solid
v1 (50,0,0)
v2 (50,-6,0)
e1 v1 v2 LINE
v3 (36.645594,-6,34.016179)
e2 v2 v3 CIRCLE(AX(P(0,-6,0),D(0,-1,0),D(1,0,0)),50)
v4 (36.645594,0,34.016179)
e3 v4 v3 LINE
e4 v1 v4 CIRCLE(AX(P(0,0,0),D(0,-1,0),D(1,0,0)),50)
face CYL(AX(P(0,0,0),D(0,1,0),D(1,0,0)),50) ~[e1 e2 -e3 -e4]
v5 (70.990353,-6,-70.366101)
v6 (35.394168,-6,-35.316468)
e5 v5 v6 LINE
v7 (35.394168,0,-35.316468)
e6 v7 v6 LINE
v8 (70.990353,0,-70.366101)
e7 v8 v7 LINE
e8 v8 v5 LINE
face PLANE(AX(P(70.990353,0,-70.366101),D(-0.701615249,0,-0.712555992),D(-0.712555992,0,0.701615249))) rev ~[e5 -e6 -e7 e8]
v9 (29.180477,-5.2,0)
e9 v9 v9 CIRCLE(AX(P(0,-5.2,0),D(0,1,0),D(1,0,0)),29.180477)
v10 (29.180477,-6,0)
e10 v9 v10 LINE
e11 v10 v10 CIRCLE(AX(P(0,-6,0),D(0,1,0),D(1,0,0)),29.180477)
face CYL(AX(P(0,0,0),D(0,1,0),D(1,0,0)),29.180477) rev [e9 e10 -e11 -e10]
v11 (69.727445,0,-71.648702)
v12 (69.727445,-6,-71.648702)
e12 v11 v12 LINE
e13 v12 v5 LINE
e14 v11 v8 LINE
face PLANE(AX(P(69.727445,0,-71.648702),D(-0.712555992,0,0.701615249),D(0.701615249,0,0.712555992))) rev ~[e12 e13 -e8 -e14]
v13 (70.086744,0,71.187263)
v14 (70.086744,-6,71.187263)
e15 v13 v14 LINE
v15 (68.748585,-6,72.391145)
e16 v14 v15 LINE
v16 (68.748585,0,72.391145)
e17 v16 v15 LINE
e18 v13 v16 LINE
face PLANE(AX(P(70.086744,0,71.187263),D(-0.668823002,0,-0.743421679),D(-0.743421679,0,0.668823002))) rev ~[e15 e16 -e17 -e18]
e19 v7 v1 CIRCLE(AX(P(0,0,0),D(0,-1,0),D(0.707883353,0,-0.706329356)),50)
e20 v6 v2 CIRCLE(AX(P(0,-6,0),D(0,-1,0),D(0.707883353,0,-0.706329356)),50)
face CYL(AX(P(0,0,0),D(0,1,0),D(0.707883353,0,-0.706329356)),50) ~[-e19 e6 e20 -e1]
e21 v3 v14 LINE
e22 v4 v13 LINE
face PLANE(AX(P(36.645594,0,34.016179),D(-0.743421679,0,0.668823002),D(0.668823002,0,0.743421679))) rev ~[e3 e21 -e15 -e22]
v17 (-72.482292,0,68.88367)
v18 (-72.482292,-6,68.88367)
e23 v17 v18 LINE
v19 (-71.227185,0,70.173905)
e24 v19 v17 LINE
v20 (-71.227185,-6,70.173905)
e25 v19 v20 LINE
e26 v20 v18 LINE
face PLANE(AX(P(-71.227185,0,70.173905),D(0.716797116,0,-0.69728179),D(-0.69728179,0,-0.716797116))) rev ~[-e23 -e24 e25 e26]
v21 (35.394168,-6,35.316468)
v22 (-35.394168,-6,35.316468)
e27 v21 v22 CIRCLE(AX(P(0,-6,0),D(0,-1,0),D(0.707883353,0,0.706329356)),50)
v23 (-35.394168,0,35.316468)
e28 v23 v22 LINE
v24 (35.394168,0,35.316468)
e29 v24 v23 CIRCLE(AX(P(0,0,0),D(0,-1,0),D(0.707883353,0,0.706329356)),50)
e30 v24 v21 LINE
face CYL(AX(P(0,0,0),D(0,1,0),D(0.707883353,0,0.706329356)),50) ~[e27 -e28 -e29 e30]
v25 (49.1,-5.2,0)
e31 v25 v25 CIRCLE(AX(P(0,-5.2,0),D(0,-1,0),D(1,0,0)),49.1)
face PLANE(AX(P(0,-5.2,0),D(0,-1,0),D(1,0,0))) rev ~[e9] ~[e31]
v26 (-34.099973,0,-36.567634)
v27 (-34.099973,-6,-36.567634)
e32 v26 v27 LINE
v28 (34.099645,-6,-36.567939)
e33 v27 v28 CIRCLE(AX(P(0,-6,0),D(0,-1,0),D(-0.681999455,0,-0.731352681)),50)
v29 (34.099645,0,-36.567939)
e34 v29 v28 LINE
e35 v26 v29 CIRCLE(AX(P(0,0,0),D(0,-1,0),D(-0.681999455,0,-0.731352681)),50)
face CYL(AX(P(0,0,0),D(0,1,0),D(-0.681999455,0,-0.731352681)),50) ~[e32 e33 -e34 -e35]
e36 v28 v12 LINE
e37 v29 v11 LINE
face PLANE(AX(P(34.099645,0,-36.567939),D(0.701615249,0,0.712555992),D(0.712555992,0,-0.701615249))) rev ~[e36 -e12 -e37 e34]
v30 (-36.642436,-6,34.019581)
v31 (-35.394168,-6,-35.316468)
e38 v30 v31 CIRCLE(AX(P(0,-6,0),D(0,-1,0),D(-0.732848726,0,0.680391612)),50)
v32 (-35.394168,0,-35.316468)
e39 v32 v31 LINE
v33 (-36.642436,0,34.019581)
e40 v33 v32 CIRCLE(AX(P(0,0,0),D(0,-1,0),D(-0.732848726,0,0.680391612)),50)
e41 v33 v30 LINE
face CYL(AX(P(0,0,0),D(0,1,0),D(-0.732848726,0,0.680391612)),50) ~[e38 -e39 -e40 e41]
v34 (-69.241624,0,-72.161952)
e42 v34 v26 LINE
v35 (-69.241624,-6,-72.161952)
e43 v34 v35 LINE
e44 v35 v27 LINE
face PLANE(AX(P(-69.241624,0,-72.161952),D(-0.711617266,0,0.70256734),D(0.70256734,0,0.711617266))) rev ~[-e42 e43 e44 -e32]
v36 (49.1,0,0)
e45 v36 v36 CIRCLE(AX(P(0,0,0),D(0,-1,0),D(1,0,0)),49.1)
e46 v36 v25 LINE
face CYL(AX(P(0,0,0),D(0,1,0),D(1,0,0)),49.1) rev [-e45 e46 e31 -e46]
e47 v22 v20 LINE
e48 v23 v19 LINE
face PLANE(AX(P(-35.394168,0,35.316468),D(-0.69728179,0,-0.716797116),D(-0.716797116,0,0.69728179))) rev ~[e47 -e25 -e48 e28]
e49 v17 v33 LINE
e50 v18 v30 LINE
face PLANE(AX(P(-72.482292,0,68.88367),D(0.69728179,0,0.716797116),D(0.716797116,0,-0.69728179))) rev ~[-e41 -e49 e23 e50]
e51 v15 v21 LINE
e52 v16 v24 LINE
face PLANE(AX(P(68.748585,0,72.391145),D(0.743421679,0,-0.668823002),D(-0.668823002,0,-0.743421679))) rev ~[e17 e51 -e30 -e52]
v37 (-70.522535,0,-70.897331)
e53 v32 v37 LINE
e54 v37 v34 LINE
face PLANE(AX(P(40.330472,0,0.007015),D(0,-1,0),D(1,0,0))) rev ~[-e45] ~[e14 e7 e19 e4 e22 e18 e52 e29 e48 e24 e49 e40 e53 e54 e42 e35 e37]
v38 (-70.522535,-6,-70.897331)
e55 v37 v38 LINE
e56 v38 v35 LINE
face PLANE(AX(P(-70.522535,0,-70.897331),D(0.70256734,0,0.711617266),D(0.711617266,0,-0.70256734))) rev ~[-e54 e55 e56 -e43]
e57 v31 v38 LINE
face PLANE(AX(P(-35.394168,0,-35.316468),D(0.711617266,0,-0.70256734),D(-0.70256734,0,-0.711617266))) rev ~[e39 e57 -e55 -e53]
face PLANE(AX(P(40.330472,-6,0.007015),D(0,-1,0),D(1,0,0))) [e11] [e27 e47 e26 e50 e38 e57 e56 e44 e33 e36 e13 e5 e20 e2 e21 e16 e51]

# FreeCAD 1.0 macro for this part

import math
import FreeCAD as App
import Part
import Sketcher
from FreeCAD import Vector
Q = App.Units.Quantity

doc = App.newDocument("Part")
body = doc.addObject("PartDesign::Body", "Body")

# Sketch on XZ plane
sketch1 = doc.addObject("Sketcher::SketchObject", "Sketch")
body.addObject(sketch1)
sketch1.AttachmentSupport = (doc.XZ_Plane, [""])
sketch1.MapMode = "FlatFace"
sketch1.addGeometry([
    Part.ArcOfCircle(Part.Circle(Vector(0, 0, 0), Vector(0, 0, 1), 50), math.radians(-44.937041), math.radians(0)),  # 0
    Part.ArcOfCircle(Part.Circle(Vector(0, 0, 0), Vector(0, 0, 1), 50), math.radians(0), math.radians(42.868935)),  # 1
    Part.LineSegment(Vector(36.645594, 34.016179, 0), Vector(70.086744, 71.187263, 0)),  # 2
    Part.LineSegment(Vector(70.086744, 71.187263, 0), Vector(68.748585, 72.391145, 0)),  # 3
    Part.LineSegment(Vector(68.748585, 72.391145, 0), Vector(35.394168, 35.316468, 0)),  # 4
    Part.ArcOfCircle(Part.Circle(Vector(0, 0, 0), Vector(0, 0, 1), 50), math.radians(44.937041), math.radians(135.062959)),  # 5
    Part.LineSegment(Vector(-35.394168, 35.316468, 0), Vector(-71.227185, 70.173905, 0)),  # 6
    Part.LineSegment(Vector(-71.227185, 70.173905, 0), Vector(-72.482292, 68.88367, 0)),  # 7
    Part.LineSegment(Vector(-72.482292, 68.88367, 0), Vector(-36.642436, 34.019581, 0)),  # 8
    Part.ArcOfCircle(Part.Circle(Vector(0, 0, 0), Vector(0, 0, 1), 50), math.radians(137.125747), math.radians(224.937041)),  # 9
    Part.LineSegment(Vector(-35.394168, -35.316468, 0), Vector(-70.522535, -70.897331, 0)),  # 10
    Part.LineSegment(Vector(-70.522535, -70.897331, 0), Vector(-69.241624, -72.161952, 0)),  # 11
    Part.LineSegment(Vector(-69.241624, -72.161952, 0), Vector(-34.099973, -36.567634, 0)),  # 12
    Part.ArcOfCircle(Part.Circle(Vector(0, 0, 0), Vector(0, 0, 1), 50), math.radians(-133.000086), math.radians(-47.000427)),  # 13
    Part.LineSegment(Vector(34.099645, -36.567939, 0), Vector(69.727445, -71.648702, 0)),  # 14
    Part.LineSegment(Vector(69.727445, -71.648702, 0), Vector(70.990353, -70.366101, 0)),  # 15
    Part.LineSegment(Vector(70.990353, -70.366101, 0), Vector(35.394168, -35.316468, 0)),  # 16
], False)
sketch1.addConstraint([
    Sketcher.Constraint("Tangent", 0, 2, 1, 1),
    Sketcher.Constraint("Coincident", 1, 2, 2, 1),
    Sketcher.Constraint("Coincident", 2, 2, 3, 1),
    Sketcher.Constraint("Coincident", 3, 2, 4, 1),
    Sketcher.Constraint("Coincident", 4, 2, 5, 1),
    Sketcher.Constraint("Coincident", 5, 2, 6, 1),
    Sketcher.Constraint("Coincident", 6, 2, 7, 1),
    Sketcher.Constraint("Coincident", 7, 2, 8, 1),
    Sketcher.Constraint("Coincident", 8, 2, 9, 1),
    Sketcher.Constraint("Coincident", 9, 2, 10, 1),
    Sketcher.Constraint("Coincident", 10, 2, 11, 1),
    Sketcher.Constraint("Coincident", 11, 2, 12, 1),
    Sketcher.Constraint("Coincident", 12, 2, 13, 1),
    Sketcher.Constraint("Coincident", 13, 2, 14, 1),
    Sketcher.Constraint("Coincident", 14, 2, 15, 1),
    Sketcher.Constraint("Coincident", 15, 2, 16, 1),
    Sketcher.Constraint("Coincident", 16, 2, 0, 1),
    Sketcher.Constraint("Coincident", 0, 3, -1, 1),
    Sketcher.Constraint("Coincident", 5, 3, -1, 1),
    Sketcher.Constraint("Coincident", 9, 3, -1, 1),
    Sketcher.Constraint("Coincident", 13, 3, -1, 1),
    Sketcher.Constraint("Equal", 0, 1),
    Sketcher.Constraint("Equal", 1, 5),
    Sketcher.Constraint("Equal", 5, 9),
    Sketcher.Constraint("Equal", 9, 13),
    Sketcher.Constraint("PointOnObject", 0, 2, -1),
    Sketcher.Constraint("Perpendicular", 2, 3),
    Sketcher.Constraint("Perpendicular", 3, 4),
    Sketcher.Constraint("Perpendicular", 6, 7),
    Sketcher.Constraint("Perpendicular", 7, 8),
    Sketcher.Constraint("Perpendicular", 10, 11),
    Sketcher.Constraint("Perpendicular", 11, 12),
    Sketcher.Constraint("Perpendicular", 14, 15),
    Sketcher.Constraint("Perpendicular", 15, 16),
    Sketcher.Constraint("Horizontal", 4, 2, 5, 2),
    Sketcher.Constraint("Horizontal", 9, 2, 16, 2),
    Sketcher.Constraint("Vertical", 5, 2, 9, 2),
    Sketcher.Constraint("Equal", 3, 7),
    Sketcher.Constraint("Equal", 2, 8),
    Sketcher.Constraint("Equal", 8, 10),
    Sketcher.Constraint("Equal", 7, 11),
    Sketcher.Constraint("Equal", 10, 14),
    Sketcher.Constraint("Equal", 11, 15),
    Sketcher.Constraint("Radius", 0, Q("50 mm")),
    Sketcher.Constraint("Distance", 2, Q("50 mm")),
    Sketcher.Constraint("Distance", 3, Q("1.8 mm")),
    Sketcher.Constraint("DistanceY", 14, 2, -1, 1, Q("71.648702 mm")),
    Sketcher.Constraint("DistanceY", 15, 2, -1, 1, Q("70.366101 mm")),
    Sketcher.Constraint("Distance", 4, Q("49.87032 mm")),
    Sketcher.Constraint("Distance", 6, Q("49.99046 mm")),
    Sketcher.Constraint("DistanceY", 10, 2, -1, 1, Q("70.897331 mm")),
])
pad1 = doc.addObject("PartDesign::Pad", "Pad")
body.addObject(pad1)
pad1.Profile = sketch1
pad1.Length = 6

# Sketch on XZ plane
sketch2 = doc.addObject("Sketcher::SketchObject", "Sketch001")
body.addObject(sketch2)
sketch2.AttachmentSupport = (doc.XZ_Plane, [""])
sketch2.MapMode = "FlatFace"
sketch2.addGeometry(Part.Circle(Vector(0, 0, 0), Vector(0, 0, 1), 49.1), False)
sketch2.addConstraint([
    Sketcher.Constraint("Coincident", 0, 3, -1, 1),
    Sketcher.Constraint("Diameter", 0, Q("98.2 mm")),
])
pocket1 = doc.addObject("PartDesign::Pocket", "Pocket")
body.addObject(pocket1)
pocket1.Profile = sketch2
pocket1.Length = 5.2
pocket1.Reversed = True

# Sketch on XZ plane
sketch3 = doc.addObject("Sketcher::SketchObject", "Sketch002")
body.addObject(sketch3)
sketch3.AttachmentSupport = (doc.XZ_Plane, [""])
sketch3.MapMode = "FlatFace"
sketch3.addGeometry(Part.Circle(Vector(0, 0, 0), Vector(0, 0, 1), 29.180477), False)
sketch3.addConstraint([
    Sketcher.Constraint("Coincident", 0, 3, -1, 1),
    Sketcher.Constraint("Diameter", 0, Q("58.360955 mm")),
])
pocket2 = doc.addObject("PartDesign::Pocket", "Pocket001")
body.addObject(pocket2)
pocket2.Profile = sketch3
pocket2.Length = 25
pocket2.Reversed = True

doc.recompute()
